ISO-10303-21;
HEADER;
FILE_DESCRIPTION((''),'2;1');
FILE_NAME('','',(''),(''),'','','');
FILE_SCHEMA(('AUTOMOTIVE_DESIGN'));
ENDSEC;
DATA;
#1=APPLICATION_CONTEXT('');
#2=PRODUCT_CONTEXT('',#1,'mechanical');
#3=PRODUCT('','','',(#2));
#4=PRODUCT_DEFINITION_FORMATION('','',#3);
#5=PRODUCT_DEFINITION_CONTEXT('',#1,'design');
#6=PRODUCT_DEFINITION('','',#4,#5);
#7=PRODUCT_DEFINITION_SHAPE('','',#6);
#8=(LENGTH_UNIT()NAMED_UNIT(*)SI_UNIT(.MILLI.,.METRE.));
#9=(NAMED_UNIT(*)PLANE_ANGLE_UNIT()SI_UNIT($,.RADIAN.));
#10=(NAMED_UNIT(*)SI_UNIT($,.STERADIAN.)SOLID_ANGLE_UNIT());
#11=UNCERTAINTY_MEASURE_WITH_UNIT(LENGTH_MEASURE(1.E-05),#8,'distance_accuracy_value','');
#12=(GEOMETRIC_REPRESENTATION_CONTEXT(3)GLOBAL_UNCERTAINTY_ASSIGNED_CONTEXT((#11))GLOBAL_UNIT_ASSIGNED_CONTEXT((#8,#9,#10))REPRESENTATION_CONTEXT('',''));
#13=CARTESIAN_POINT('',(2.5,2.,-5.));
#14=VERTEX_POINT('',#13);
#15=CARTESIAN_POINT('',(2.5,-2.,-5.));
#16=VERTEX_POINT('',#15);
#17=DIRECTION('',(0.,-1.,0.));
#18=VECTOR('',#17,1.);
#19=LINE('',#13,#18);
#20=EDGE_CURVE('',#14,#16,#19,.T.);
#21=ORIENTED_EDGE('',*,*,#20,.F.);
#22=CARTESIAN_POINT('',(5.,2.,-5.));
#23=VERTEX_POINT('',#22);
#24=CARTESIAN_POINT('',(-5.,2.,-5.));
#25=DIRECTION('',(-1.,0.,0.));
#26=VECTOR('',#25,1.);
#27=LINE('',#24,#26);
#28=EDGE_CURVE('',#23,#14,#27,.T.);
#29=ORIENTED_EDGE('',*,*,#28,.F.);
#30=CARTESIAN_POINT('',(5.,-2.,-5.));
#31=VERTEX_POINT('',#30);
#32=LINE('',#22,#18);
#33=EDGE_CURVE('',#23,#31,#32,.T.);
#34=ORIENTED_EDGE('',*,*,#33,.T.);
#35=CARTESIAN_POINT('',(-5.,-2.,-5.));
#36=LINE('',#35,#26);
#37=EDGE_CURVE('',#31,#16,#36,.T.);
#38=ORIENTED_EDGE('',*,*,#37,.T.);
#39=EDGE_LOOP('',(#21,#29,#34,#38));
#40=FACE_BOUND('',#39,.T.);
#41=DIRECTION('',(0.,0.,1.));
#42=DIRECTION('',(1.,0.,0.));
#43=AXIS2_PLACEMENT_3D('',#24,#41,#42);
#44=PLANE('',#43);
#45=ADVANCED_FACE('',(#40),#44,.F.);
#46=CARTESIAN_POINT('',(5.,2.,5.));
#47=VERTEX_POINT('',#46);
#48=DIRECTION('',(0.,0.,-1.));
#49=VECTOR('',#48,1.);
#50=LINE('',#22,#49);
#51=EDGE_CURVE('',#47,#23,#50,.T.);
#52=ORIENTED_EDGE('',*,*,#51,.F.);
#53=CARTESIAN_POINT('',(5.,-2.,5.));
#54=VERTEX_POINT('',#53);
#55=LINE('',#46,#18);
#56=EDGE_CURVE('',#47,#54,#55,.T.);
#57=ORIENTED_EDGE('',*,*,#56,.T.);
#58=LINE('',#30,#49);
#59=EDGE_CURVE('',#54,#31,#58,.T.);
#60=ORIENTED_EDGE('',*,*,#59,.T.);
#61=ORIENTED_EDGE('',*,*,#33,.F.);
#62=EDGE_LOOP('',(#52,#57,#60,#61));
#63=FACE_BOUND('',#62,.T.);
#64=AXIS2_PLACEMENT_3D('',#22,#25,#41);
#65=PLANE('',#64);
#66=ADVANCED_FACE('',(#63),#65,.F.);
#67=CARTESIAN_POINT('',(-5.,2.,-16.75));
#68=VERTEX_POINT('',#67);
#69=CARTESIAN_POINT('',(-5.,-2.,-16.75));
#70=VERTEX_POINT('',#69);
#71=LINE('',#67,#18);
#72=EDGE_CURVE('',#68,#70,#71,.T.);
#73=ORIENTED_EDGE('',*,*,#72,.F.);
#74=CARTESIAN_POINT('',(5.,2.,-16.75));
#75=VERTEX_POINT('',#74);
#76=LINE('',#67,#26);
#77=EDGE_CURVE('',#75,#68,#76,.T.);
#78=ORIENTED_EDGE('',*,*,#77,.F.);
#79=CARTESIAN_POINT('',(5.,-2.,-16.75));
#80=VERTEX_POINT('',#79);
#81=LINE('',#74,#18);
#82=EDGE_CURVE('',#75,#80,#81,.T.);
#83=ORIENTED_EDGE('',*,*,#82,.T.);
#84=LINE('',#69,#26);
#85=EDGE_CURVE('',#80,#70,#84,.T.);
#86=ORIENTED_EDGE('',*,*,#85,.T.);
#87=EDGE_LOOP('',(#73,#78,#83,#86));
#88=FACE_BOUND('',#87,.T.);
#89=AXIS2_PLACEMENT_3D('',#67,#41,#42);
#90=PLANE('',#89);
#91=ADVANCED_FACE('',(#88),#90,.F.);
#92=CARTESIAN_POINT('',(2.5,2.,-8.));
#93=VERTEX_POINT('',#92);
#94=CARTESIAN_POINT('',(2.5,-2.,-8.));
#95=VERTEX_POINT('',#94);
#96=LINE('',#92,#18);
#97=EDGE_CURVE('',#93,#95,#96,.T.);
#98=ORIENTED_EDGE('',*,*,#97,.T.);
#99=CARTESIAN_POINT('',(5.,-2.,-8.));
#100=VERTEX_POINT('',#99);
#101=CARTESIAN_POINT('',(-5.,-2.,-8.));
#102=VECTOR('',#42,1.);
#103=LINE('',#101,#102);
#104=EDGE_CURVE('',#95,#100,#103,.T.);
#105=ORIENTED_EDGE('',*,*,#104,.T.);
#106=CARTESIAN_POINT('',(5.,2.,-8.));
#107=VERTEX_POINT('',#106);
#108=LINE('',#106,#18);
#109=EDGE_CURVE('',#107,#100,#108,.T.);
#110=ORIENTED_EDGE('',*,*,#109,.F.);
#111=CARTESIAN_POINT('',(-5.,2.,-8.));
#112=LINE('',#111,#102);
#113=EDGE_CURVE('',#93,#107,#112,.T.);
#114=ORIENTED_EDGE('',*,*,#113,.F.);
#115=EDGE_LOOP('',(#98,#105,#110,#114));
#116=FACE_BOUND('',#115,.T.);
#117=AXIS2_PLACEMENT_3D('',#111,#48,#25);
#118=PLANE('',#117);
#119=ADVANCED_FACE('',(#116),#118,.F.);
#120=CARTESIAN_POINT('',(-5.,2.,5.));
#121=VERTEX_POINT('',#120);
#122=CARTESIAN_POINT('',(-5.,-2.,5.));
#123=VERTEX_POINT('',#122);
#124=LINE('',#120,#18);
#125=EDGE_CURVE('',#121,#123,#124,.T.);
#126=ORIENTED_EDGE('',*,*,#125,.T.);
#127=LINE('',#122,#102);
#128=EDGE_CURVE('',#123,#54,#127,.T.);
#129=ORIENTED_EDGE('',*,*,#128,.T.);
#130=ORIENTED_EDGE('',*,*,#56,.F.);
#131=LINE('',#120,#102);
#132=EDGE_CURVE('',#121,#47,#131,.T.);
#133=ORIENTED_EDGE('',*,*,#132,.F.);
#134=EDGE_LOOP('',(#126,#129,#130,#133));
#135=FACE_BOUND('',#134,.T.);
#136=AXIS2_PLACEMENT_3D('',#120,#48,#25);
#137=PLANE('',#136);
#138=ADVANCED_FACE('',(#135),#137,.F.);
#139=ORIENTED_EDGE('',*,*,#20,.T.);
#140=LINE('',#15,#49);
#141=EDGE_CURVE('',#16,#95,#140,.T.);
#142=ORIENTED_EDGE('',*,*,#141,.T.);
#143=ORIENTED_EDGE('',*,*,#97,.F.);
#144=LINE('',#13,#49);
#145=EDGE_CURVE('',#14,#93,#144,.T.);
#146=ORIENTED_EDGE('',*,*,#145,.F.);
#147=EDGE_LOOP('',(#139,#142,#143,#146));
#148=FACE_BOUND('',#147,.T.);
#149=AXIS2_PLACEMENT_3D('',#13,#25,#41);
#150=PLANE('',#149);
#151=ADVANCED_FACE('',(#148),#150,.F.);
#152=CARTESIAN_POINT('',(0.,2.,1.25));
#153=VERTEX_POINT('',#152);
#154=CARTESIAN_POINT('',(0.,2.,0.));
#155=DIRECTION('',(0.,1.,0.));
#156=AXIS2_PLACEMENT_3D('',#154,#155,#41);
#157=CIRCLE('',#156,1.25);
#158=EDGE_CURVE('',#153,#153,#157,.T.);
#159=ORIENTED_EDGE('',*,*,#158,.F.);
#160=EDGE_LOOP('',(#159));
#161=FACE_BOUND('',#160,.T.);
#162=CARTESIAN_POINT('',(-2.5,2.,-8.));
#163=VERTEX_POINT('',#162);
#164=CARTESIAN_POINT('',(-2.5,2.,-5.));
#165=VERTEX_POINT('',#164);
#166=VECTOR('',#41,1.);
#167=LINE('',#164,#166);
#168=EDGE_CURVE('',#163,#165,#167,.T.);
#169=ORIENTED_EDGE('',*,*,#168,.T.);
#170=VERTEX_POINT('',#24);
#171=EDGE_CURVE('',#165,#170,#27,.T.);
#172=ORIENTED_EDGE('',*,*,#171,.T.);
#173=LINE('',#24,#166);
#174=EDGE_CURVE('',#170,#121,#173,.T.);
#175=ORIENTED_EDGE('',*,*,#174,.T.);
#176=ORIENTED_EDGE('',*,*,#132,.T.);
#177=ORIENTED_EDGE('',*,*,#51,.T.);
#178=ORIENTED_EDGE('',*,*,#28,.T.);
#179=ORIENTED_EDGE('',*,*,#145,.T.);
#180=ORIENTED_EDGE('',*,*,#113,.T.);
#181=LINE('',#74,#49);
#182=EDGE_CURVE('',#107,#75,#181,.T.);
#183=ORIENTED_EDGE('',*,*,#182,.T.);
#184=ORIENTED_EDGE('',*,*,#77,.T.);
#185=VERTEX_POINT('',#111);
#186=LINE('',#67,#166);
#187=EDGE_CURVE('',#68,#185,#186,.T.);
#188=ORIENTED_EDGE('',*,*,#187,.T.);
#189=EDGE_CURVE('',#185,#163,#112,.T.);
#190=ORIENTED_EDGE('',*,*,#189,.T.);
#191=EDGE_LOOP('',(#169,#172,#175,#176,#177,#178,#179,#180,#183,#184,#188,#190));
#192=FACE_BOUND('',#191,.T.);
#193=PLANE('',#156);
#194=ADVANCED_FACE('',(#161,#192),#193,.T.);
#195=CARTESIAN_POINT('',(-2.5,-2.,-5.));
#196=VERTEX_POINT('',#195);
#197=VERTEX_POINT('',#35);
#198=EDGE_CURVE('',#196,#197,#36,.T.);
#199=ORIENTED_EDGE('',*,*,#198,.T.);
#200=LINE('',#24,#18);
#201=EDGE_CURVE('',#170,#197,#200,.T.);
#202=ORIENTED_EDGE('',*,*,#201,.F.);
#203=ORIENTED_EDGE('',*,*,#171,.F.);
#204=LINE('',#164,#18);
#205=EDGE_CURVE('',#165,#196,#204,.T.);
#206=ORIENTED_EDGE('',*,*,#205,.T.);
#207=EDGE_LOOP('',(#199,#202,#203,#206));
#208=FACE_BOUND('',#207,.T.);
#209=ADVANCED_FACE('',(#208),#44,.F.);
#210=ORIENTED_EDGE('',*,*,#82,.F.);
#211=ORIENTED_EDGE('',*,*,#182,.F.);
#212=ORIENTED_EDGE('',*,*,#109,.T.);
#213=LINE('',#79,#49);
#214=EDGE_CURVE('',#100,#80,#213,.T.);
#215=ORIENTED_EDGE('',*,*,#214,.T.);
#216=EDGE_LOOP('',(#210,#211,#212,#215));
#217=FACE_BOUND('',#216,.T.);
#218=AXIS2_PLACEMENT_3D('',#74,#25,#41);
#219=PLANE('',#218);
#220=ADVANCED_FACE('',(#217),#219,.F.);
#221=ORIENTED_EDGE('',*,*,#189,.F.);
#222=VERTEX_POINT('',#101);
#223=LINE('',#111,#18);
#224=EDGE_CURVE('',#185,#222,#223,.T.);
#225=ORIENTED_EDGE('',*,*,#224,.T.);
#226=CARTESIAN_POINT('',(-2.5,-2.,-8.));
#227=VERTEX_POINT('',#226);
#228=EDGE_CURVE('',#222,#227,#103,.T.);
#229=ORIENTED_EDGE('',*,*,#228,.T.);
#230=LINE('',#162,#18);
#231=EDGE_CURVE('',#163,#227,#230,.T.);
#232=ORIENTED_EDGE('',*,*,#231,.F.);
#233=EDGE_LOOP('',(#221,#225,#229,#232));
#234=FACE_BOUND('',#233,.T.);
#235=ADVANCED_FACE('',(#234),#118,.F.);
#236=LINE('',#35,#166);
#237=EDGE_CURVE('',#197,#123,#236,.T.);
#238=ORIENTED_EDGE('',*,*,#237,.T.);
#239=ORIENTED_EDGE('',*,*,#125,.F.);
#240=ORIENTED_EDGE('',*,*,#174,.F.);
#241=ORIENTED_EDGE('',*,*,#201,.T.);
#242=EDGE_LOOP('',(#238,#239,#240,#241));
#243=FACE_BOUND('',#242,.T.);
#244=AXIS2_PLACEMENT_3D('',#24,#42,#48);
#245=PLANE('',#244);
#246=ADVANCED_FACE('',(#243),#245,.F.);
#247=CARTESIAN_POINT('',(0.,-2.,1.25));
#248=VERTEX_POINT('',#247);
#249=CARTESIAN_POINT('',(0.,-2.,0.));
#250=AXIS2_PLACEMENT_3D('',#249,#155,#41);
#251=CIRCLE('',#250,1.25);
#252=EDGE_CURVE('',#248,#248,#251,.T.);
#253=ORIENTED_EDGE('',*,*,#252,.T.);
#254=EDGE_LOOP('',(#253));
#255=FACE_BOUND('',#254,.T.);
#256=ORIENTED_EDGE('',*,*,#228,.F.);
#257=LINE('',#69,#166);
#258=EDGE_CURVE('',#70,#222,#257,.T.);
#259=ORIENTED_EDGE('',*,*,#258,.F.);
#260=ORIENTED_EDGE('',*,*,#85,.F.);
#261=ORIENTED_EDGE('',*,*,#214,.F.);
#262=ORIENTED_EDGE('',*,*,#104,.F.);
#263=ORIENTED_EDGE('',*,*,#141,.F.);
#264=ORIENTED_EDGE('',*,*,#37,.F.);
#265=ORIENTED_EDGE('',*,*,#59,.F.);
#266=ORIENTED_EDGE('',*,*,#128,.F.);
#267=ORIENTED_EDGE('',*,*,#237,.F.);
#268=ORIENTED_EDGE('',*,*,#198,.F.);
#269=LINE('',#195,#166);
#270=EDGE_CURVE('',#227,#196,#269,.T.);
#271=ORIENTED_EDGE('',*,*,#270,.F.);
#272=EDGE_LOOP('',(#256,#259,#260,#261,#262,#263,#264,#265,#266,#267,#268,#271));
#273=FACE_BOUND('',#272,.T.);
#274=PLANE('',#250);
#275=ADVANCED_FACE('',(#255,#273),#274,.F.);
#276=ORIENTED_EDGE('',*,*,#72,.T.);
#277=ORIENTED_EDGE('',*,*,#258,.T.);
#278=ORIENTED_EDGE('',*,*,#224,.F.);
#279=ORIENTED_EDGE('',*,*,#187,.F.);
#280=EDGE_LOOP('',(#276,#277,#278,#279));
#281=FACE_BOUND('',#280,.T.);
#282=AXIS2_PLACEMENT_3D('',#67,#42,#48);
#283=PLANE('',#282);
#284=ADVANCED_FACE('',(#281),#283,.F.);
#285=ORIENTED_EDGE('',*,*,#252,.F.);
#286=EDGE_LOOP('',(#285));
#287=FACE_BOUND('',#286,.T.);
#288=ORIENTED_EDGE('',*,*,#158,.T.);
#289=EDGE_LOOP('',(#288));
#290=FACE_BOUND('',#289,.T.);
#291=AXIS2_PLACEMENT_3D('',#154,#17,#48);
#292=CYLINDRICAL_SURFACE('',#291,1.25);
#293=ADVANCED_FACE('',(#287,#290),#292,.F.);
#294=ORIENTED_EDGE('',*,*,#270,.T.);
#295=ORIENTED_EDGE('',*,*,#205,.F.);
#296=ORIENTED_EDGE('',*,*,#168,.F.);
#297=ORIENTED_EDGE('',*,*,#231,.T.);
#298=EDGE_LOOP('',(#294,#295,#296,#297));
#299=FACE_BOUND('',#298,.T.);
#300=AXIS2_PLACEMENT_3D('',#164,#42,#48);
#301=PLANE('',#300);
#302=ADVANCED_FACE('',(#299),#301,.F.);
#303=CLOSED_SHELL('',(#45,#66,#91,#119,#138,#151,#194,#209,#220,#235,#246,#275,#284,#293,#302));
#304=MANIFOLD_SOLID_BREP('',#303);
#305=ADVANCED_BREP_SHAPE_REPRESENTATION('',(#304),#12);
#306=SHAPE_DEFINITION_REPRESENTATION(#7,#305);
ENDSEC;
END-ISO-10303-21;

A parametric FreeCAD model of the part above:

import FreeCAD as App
import Part
import Sketcher


def add_polygon(sketch, points):
    """Adds a closed chain of lines whose ends are joined by coincident constraints."""
    first, n = sketch.GeometryCount, len(points)
    for a, b in zip(points, points[1:] + points[:1]):
        sketch.addGeometry(Part.LineSegment(App.Vector(*a, 0), App.Vector(*b, 0)), False)
    for i in range(n):
        sketch.addConstraint(Sketcher.Constraint("Coincident", first + i, 2, first + (i + 1) % n, 1))

doc = App.newDocument("Part")
params = doc.addObject("Spreadsheet::Sheet", "Params")
for row, (alias, value) in enumerate([
    ("sketch1_diameter", "2.5 mm"),
    ("sketch1_width", "10 mm"),
    ("pad1_length", "4 mm"),
    ("sketch2_width", "5 mm"),
    ("sketch2_height", "3 mm"),
    ("pad2_length", "4 mm"),
    ("sketch3_width", "10 mm"),
    ("sketch3_height", "8.75 mm"),
    ("pad3_length", "4 mm"),
], start=1):
    params.set(f"A{row}", alias)
    params.set(f"B{row}", "=" + value)
    params.setAlias(f"B{row}", alias)

body = doc.addObject("PartDesign::Body", "Body")

sketch1 = body.newObject("Sketcher::SketchObject", "Sketch")
sketch1.AttachmentSupport = (doc.getObject("XZ_Plane"), [""])
sketch1.MapMode = "FlatFace"
add_polygon(sketch1, [(-5, -5), (-5, 5), (5, 5), (5, -5)])
sketch1.addGeometry(Part.Circle(App.Vector(0, 0, 0), App.Vector(0, 0, 1), 1.25), False)
sketch1.addConstraint([
    Sketcher.Constraint("Vertical", 0),
    Sketcher.Constraint("Horizontal", 1),
    Sketcher.Constraint("Vertical", 2),
    Sketcher.Constraint("Horizontal", 3),
    Sketcher.Constraint("Coincident", 4, 3, -1, 1),
    Sketcher.Constraint("Symmetric", 0, 2, 2, 2, -1, 1),
    Sketcher.Constraint("Equal", 3, 0),
    Sketcher.Constraint("Diameter", 4, 2.5),
    Sketcher.Constraint("DistanceX", 1, 1, 1, 2, 10.0),
])
sketch1.setExpression("Constraints[11]", "Params.sketch1_diameter")
sketch1.setExpression("Constraints[12]", "Params.sketch1_width")
pad1 = body.newObject("PartDesign::Pad", "Pad")
pad1.Profile = sketch1
pad1.setExpression("Length", "Params.pad1_length")
pad1.Midplane = True

sketch2 = body.newObject("Sketcher::SketchObject", "Sketch001")
sketch2.AttachmentSupport = (doc.getObject("XZ_Plane"), [""])
sketch2.MapMode = "FlatFace"
add_polygon(sketch2, [(-2.5, -8), (-2.5, -5), (2.5, -5), (2.5, -8)])
sketch2.addConstraint([
    Sketcher.Constraint("Vertical", 0),
    Sketcher.Constraint("Horizontal", 1),
    Sketcher.Constraint("Vertical", 2),
    Sketcher.Constraint("Horizontal", 3),
    Sketcher.Constraint("DistanceX", 1, 1, 1, 2, 5.0),
    Sketcher.Constraint("DistanceY", 0, 1, 0, 2, 3.0),
    Sketcher.Constraint("DistanceY", 0, 2, -1, 1, 5.0),
    Sketcher.Constraint("DistanceX", 0, 2, -1, 1, 2.5),
])
sketch2.setExpression("Constraints[8]", "Params.sketch2_width")
sketch2.setExpression("Constraints[9]", "Params.sketch2_height")
pad2 = body.newObject("PartDesign::Pad", "Pad001")
pad2.Profile = sketch2
pad2.setExpression("Length", "Params.pad2_length")
pad2.Midplane = True

sketch3 = body.newObject("Sketcher::SketchObject", "Sketch002")
sketch3.AttachmentSupport = (doc.getObject("XZ_Plane"), [""])
sketch3.MapMode = "FlatFace"
add_polygon(sketch3, [(-5, -16.75), (-5, -8), (5, -8), (5, -16.75)])
sketch3.addConstraint([
    Sketcher.Constraint("Vertical", 0),
    Sketcher.Constraint("Horizontal", 1),
    Sketcher.Constraint("Vertical", 2),
    Sketcher.Constraint("Horizontal", 3),
    Sketcher.Constraint("DistanceX", 1, 1, 1, 2, 10.0),
    Sketcher.Constraint("DistanceX", 0, 2, -1, 1, 5.0),
    Sketcher.Constraint("DistanceY", 0, 2, -1, 1, 8.0),
    Sketcher.Constraint("DistanceY", 0, 1, 0, 2, 8.75),
])
sketch3.setExpression("Constraints[8]", "Params.sketch3_width")
sketch3.setExpression("Constraints[11]", "Params.sketch3_height")
pad3 = body.newObject("PartDesign::Pad", "Pad002")
pad3.Profile = sketch3
pad3.setExpression("Length", "Params.pad3_length")
pad3.Midplane = True

doc.recompute()
